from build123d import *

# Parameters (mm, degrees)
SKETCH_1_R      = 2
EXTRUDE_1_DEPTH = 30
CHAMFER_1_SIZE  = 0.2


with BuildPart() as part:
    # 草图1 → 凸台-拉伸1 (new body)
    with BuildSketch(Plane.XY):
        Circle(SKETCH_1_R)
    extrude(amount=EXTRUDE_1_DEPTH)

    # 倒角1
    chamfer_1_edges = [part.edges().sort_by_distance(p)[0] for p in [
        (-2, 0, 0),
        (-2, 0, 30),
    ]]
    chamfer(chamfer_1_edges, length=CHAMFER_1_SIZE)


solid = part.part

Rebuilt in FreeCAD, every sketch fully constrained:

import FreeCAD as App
import Part
import Sketcher

V = App.Vector


def edges_at(feature, points):
    """Names of the edges that pass closest to the given points."""
    edges = feature.Shape.Edges
    near = lambda p: min(range(len(edges)), key=lambda i: edges[i].distToShape(Part.Vertex(*p))[0])
    return sorted({f"Edge{near(p) + 1}" for p in points})

doc = App.newDocument("Part")
body = doc.addObject("PartDesign::Body", "Body")

# Sketch on XY plane
sketch1 = body.newObject("Sketcher::SketchObject", "Sketch")
sketch1.AttachmentSupport = (doc.getObject("XY_Plane"), [""])
sketch1.MapMode = "FlatFace"
sketch1.addGeometry(Part.Circle(V(0, 0, 0), V(0, 0, 1), 2), False)
sketch1.addConstraint(Sketcher.Constraint("Coincident", 0, 3, -1, 1))
sketch1.addConstraint(Sketcher.Constraint("Diameter", 0, 4.0))
pad1 = body.newObject("PartDesign::Pad", "Pad")
pad1.Profile = sketch1
pad1.Length = 30
doc.recompute()

chamfer = body.newObject("PartDesign::Chamfer", "Chamfer")
chamfer.Base = (pad1, edges_at(pad1, [(-2, 0, 0), (-2, 0, 30)]))
chamfer.Size = 0.2

doc.recompute()
